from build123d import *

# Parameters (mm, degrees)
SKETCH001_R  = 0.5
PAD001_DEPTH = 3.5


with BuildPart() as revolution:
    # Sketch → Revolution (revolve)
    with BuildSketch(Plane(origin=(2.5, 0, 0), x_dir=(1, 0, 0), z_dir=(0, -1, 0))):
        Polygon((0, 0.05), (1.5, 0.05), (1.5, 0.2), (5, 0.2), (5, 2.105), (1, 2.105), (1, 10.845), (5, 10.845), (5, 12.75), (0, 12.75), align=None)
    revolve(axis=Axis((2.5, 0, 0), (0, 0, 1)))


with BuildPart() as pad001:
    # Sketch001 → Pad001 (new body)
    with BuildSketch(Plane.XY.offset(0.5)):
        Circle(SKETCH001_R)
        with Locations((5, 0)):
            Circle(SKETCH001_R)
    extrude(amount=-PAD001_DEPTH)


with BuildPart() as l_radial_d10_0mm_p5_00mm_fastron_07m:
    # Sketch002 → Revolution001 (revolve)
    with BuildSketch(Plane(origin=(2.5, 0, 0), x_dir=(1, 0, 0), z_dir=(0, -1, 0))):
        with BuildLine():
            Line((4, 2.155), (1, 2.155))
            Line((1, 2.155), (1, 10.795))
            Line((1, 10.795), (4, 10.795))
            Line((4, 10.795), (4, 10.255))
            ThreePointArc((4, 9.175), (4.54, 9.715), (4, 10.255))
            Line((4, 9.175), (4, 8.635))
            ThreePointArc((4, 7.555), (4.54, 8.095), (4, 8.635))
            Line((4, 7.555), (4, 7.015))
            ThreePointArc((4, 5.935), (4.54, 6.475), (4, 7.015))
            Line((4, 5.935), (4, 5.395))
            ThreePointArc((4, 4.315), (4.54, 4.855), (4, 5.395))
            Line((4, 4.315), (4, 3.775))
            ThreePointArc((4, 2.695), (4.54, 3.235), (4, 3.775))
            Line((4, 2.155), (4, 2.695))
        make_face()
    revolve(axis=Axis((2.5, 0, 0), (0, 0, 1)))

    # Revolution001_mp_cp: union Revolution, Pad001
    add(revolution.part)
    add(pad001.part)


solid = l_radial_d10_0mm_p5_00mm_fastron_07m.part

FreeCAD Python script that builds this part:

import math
import FreeCAD as App
import Part
import Sketcher
Q = App.Units.Quantity


def add_polygon(sketch, points):
    """Adds a closed chain of lines whose ends are joined by coincident constraints."""
    first, n = sketch.GeometryCount, len(points)
    for a, b in zip(points, points[1:] + points[:1]):
        sketch.addGeometry(Part.LineSegment(App.Vector(*a, 0), App.Vector(*b, 0)), False)
    for i in range(n):
        sketch.addConstraint(Sketcher.Constraint("Coincident", first + i, 2, first + (i + 1) % n, 1))

doc = App.newDocument("Part")
body = doc.addObject("PartDesign::Body", "Body")

sketch1 = doc.addObject("Sketcher::SketchObject", "Sketch")
body.addObject(sketch1)
sketch1.AttachmentSupport = (doc.XZ_Plane, [""])
sketch1.MapMode = "FlatFace"
add_polygon(sketch1, [(2.5, 0.05), (4, 0.05), (4, 0.2), (7.5, 0.2), (7.5, 2.1), (3.5, 2.1), (3.5, 10.85), (7.5, 10.85), (7.5, 12.75), (2.5, 12.75)])
sketch1.addGeometry(Part.LineSegment(App.Vector(2.5, 0.05, 0), App.Vector(2.5, 12.75, 0)), True)
sketch1.addConstraint([
    Sketcher.Constraint("Horizontal", 0),
    Sketcher.Constraint("Vertical", 1),
    Sketcher.Constraint("Horizontal", 2),
    Sketcher.Constraint("Vertical", 3),
    Sketcher.Constraint("Horizontal", 4),
    Sketcher.Constraint("Vertical", 5),
    Sketcher.Constraint("Horizontal", 6),
    Sketcher.Constraint("Vertical", 7),
    Sketcher.Constraint("Horizontal", 8),
    Sketcher.Constraint("Vertical", 9),
    Sketcher.Constraint("Vertical", 10),
    Sketcher.Constraint("Coincident", 10, 1, 9, 2),
    Sketcher.Constraint("Horizontal", 7, 2, 10, 2),
    Sketcher.Constraint("Vertical", 3, 2, 6, 2),
    Sketcher.Constraint("Equal", 3, 7),
    Sketcher.Constraint("DistanceX", 4, 2, 4, 1, Q("4 mm")),
    Sketcher.Constraint("DistanceX", 8, 2, 8, 1, Q("5 mm")),
    Sketcher.Constraint("DistanceX", 0, 1, 0, 2, Q("1.5 mm")),
    Sketcher.Constraint("DistanceY", 9, 2, 9, 1, Q("12.7 mm")),
    Sketcher.Constraint("DistanceX", -1, 1, 0, 2, Q("4 mm")),
    Sketcher.Constraint("DistanceY", 1, 1, 1, 2, Q("0.15 mm")),
    Sketcher.Constraint("DistanceY", 5, 1, 5, 2, Q("8.74 mm")),
    Sketcher.Constraint("DistanceY", -1, 1, 1, 2, Q("0.2 mm")),
])
revolution = doc.addObject("PartDesign::Revolution", "Revolution")
body.addObject(revolution)
revolution.Profile = sketch1
revolution.ReferenceAxis = (sketch1, ["Axis0"])
revolution.Angle = 360
body2 = doc.addObject("PartDesign::Body", "Body001")
body2.AllowCompound = True

sketch2 = doc.addObject("Sketcher::SketchObject", "Sketch001")
body2.addObject(sketch2)
sketch2.AttachmentSupport = (doc.getObject("XY_Plane001"), [""])
sketch2.MapMode = "FlatFace"
sketch2.AttachmentOffset = App.Placement(App.Vector(0, 0, 0.5), App.Rotation())
sketch2.addGeometry([
    Part.Circle(App.Vector(0, 0, 0), App.Vector(0, 0, 1), 0.5),
    Part.Circle(App.Vector(5, 0, 0), App.Vector(0, 0, 1), 0.5),
], False)
sketch2.addConstraint([
    Sketcher.Constraint("Coincident", 0, 3, -1, 1),
    Sketcher.Constraint("Equal", 0, 1),
    Sketcher.Constraint("PointOnObject", 1, 3, -1),
    Sketcher.Constraint("Diameter", 0, Q("1 mm")),
    Sketcher.Constraint("DistanceX", -1, 1, 1, 3, Q("5 mm")),
])
pad1 = doc.addObject("PartDesign::Pad", "Pad")
body2.addObject(pad1)
pad1.Profile = sketch2
pad1.Length = 3.5
pad1.Reversed = True
body3 = doc.addObject("PartDesign::Body", "Body002")

sketch3 = doc.addObject("Sketcher::SketchObject", "Sketch002")
body3.addObject(sketch3)
sketch3.AttachmentSupport = (doc.getObject("XZ_Plane002"), [""])
sketch3.MapMode = "FlatFace"
sketch3.addGeometry([
    Part.LineSegment(App.Vector(3.5, 2.2, 0), App.Vector(6.5, 2.2, 0)),
    Part.LineSegment(App.Vector(6.5, 2.2, 0), App.Vector(6.5, 2.7, 0)),
    Part.ArcOfCircle(Part.Circle(App.Vector(6.5, 3.2, 0), App.Vector(0, 0, 1), 0.5), math.radians(-90), math.radians(90)),
    Part.LineSegment(App.Vector(6.5, 3.8, 0), App.Vector(6.5, 4.3, 0)),
    Part.ArcOfCircle(Part.Circle(App.Vector(6.5, 4.9, 0), App.Vector(0, 0, 1), 0.5), math.radians(-90), math.radians(90)),
    Part.LineSegment(App.Vector(6.5, 5.4, 0), App.Vector(6.5, 5.9, 0)),
    Part.ArcOfCircle(Part.Circle(App.Vector(6.5, 6.5, 0), App.Vector(0, 0, 1), 0.5), math.radians(-90), math.radians(90)),
    Part.LineSegment(App.Vector(6.5, 7, 0), App.Vector(6.5, 7.6, 0)),
    Part.ArcOfCircle(Part.Circle(App.Vector(6.5, 8.1, 0), App.Vector(0, 0, 1), 0.5), math.radians(-90), math.radians(90)),
    Part.LineSegment(App.Vector(6.5, 8.6, 0), App.Vector(6.5, 9.2, 0)),
    Part.ArcOfCircle(Part.Circle(App.Vector(6.5, 9.7, 0), App.Vector(0, 0, 1), 0.5), math.radians(-90), math.radians(90)),
    Part.LineSegment(App.Vector(6.5, 10.3, 0), App.Vector(6.5, 10.8, 0)),
    Part.LineSegment(App.Vector(6.5, 10.8, 0), App.Vector(3.5, 10.8, 0)),
    Part.LineSegment(App.Vector(3.5, 10.8, 0), App.Vector(3.5, 2.2, 0)),
], False)
sketch3.addGeometry(Part.LineSegment(App.Vector(2.5, 2.2, 0), App.Vector(2.5, 10.8, 0)), True)
sketch3.addConstraint([
    Sketcher.Constraint("Coincident", 0, 2, 1, 1),
    Sketcher.Constraint("Coincident", 1, 2, 2, 1),
    Sketcher.Constraint("Coincident", 2, 2, 3, 1),
    Sketcher.Constraint("Coincident", 3, 2, 4, 1),
    Sketcher.Constraint("Coincident", 4, 2, 5, 1),
    Sketcher.Constraint("Coincident", 5, 2, 6, 1),
    Sketcher.Constraint("Coincident", 6, 2, 7, 1),
    Sketcher.Constraint("Coincident", 7, 2, 8, 1),
    Sketcher.Constraint("Coincident", 8, 2, 9, 1),
    Sketcher.Constraint("Coincident", 9, 2, 10, 1),
    Sketcher.Constraint("Coincident", 10, 2, 11, 1),
    Sketcher.Constraint("Coincident", 11, 2, 12, 1),
    Sketcher.Constraint("Coincident", 12, 2, 13, 1),
    Sketcher.Constraint("Coincident", 13, 2, 0, 1),
    Sketcher.Constraint("Horizontal", 0),
    Sketcher.Constraint("Vertical", 1),
    Sketcher.Constraint("Vertical", 3),
    Sketcher.Constraint("Vertical", 5),
    Sketcher.Constraint("Vertical", 7),
    Sketcher.Constraint("Vertical", 9),
    Sketcher.Constraint("Vertical", 11),
    Sketcher.Constraint("Horizontal", 12),
    Sketcher.Constraint("Vertical", 13),
    Sketcher.Constraint("Vertical", 14),
    Sketcher.Constraint("Equal", 2, 4),
    Sketcher.Constraint("Equal", 4, 6),
    Sketcher.Constraint("Equal", 6, 8),
    Sketcher.Constraint("Equal", 8, 10),
    Sketcher.Constraint("Horizontal", 13, 2, 14, 1),
    Sketcher.Constraint("Horizontal", 12, 2, 14, 2),
    Sketcher.Constraint("Vertical", 2, 3, 4, 3),
    Sketcher.Constraint("Vertical", 4, 3, 6, 3),
    Sketcher.Constraint("Vertical", 6, 3, 8, 3),
    Sketcher.Constraint("Vertical", 8, 3, 10, 3),
    Sketcher.Constraint("Vertical", 10, 3, 0, 2),
    Sketcher.Constraint("Vertical", 1, 2, 2, 2),
    Sketcher.Constraint("Vertical", 3, 2, 4, 2),
    Sketcher.Constraint("Vertical", 5, 2, 6, 2),
    Sketcher.Constraint("Vertical", 7, 2, 8, 2),
    Sketcher.Constraint("Vertical", 9, 2, 10, 2),
    Sketcher.Constraint("Equal", 1, 3),
    Sketcher.Constraint("Equal", 3, 5),
    Sketcher.Constraint("Equal", 5, 7),
    Sketcher.Constraint("Equal", 7, 9),
    Sketcher.Constraint("Equal", 9, 11),
    Sketcher.Constraint("DistanceX", 0, 1, 0, 2, Q("3 mm")),
    Sketcher.Constraint("Radius", 2, Q("0.54 mm")),
    Sketcher.Constraint("DistanceX", 14, 1, 13, 2, Q("1 mm")),
    Sketcher.Constraint("DistanceY", 1, 1, 1, 2, Q("0.54 mm")),
    Sketcher.Constraint("DistanceX", -1, 1, 2, 3, Q("6.5 mm")),
    Sketcher.Constraint("DistanceY", -1, 1, 2, 3, Q("3.235 mm")),
])
revolution2 = doc.addObject("PartDesign::Revolution", "Revolution001")
body3.addObject(revolution2)
revolution2.Profile = sketch3
revolution2.ReferenceAxis = (sketch3, ["Axis0"])
revolution2.Angle = 360
doc.recompute()

boolean = doc.addObject("PartDesign::Boolean", "Boolean")
body3.addObject(boolean)
boolean.Type = "Fuse"
boolean.addObjects([body])
doc.recompute()

boolean2 = doc.addObject("PartDesign::Boolean", "Boolean001")
body3.addObject(boolean2)
boolean2.Type = "Fuse"
boolean2.addObjects([body2])

doc.recompute()
